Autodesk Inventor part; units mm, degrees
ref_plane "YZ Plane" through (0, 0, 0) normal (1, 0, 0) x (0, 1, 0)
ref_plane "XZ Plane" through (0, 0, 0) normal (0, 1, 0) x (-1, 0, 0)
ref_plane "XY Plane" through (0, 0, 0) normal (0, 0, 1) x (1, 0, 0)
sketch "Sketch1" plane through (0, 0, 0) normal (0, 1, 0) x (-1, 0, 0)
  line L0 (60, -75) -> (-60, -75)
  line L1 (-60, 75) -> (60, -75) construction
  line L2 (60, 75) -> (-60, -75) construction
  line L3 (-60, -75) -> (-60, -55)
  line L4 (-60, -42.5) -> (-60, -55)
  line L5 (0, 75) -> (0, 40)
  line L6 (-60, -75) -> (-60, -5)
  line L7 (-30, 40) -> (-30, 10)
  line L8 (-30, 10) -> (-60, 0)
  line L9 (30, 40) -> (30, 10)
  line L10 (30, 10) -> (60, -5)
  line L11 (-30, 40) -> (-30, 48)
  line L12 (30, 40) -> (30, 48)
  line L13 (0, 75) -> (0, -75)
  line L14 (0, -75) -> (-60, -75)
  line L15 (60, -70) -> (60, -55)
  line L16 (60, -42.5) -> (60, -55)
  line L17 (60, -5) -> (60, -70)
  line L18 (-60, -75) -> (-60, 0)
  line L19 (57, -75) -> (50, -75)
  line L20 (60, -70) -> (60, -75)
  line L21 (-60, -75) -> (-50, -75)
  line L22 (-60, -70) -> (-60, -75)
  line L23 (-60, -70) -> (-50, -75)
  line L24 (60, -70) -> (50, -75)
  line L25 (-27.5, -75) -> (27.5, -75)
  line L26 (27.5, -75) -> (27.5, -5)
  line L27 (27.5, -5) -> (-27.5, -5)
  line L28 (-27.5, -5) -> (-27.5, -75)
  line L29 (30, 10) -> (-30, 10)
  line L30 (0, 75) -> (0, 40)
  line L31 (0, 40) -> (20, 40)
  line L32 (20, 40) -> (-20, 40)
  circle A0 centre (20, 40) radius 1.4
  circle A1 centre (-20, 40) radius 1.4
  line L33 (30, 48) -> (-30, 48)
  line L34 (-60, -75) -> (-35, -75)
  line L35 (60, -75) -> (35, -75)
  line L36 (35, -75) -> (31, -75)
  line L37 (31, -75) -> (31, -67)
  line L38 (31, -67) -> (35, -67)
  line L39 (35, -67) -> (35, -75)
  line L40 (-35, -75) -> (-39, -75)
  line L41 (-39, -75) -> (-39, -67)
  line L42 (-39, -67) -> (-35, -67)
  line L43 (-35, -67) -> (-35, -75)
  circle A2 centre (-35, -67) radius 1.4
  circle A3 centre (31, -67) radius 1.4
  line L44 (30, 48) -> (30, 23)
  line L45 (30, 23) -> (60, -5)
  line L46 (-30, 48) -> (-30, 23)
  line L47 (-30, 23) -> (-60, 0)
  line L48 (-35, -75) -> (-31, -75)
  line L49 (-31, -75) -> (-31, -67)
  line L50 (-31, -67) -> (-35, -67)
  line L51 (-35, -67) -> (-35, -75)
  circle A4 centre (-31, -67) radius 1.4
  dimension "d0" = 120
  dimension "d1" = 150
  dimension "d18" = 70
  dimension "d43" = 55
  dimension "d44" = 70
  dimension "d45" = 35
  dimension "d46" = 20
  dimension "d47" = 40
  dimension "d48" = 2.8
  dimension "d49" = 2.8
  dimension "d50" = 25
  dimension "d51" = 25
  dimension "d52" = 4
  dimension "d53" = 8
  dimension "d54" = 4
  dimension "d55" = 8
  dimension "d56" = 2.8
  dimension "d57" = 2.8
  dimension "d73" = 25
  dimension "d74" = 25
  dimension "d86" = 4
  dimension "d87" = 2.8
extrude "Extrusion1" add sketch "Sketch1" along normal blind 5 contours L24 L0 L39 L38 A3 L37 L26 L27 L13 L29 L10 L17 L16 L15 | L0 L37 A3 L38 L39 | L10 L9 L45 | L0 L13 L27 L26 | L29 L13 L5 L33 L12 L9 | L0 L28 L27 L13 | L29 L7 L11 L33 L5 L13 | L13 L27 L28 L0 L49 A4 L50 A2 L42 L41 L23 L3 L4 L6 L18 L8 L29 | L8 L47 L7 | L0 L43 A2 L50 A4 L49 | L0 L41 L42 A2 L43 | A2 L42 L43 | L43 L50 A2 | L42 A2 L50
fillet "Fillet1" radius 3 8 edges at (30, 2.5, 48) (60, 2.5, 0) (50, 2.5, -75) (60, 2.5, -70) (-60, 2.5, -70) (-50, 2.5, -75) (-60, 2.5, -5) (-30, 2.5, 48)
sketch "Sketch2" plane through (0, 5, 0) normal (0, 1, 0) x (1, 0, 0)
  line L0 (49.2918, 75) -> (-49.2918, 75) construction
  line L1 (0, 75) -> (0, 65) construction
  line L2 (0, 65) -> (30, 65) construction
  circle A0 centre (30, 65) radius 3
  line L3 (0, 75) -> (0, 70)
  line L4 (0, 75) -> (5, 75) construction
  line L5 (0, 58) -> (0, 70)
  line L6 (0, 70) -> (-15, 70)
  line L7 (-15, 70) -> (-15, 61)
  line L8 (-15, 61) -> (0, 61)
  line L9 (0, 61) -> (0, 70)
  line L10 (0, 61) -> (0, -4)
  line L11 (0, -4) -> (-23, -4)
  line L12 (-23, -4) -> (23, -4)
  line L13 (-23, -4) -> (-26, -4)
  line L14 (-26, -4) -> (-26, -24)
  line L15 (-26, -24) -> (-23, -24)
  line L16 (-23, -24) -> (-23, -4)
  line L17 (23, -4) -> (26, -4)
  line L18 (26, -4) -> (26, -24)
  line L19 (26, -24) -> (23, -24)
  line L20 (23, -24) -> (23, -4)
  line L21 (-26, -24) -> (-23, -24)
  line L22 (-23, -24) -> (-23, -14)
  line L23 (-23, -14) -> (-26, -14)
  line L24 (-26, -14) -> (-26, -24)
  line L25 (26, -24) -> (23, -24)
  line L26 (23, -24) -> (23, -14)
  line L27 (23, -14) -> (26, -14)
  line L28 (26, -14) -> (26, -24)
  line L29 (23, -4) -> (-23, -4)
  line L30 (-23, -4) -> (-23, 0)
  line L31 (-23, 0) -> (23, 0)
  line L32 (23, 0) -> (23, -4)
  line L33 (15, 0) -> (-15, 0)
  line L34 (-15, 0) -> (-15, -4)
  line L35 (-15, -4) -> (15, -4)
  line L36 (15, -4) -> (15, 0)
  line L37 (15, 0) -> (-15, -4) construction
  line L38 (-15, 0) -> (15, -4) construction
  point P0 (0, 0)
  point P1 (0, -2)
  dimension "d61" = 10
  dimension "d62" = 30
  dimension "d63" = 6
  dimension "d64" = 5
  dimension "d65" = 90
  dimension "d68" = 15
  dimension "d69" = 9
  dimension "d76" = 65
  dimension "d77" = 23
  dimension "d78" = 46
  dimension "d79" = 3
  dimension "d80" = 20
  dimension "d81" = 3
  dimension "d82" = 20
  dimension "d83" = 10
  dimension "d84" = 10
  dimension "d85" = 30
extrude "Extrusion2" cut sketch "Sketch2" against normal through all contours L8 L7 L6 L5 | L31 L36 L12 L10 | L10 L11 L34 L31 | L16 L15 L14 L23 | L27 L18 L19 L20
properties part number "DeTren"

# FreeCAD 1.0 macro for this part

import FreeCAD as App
import Part
import Sketcher

V = App.Vector


def edges_at(feature, points):
    """Names of the edges that pass closest to the given points."""
    edges = feature.Shape.Edges
    near = lambda p: min(range(len(edges)), key=lambda i: edges[i].distToShape(Part.Vertex(*p))[0])
    return sorted({f"Edge{near(p) + 1}" for p in points})

doc = App.newDocument("Part")
params = doc.addObject("Spreadsheet::Sheet", "Params")
for row, (alias, value) in enumerate([
    ("sketch1_diameter", "2.8 mm"),
    ("sketch1_height", "25 mm"),
    ("sketch1_height2", "70 mm"),
    ("sketch1_width", "60 mm"),
    ("sketch1_height3", "65 mm"),
    ("pad1_length", "5 mm"),
    ("fillet_radius", "3 mm"),
    ("sketch2_width", "15 mm"),
    ("sketch2_width2", "3 mm"),
    ("sketch2_height", "9 mm"),
    ("sketch2_height2", "10 mm"),
    ("sketch2_height3", "4 mm"),
], start=1):
    params.set(f"A{row}", alias)
    params.set(f"B{row}", "=" + value)
    params.setAlias(f"B{row}", alias)

body = doc.addObject("PartDesign::Body", "Body")

sketch1 = doc.addObject("Sketcher::SketchObject", "Sketch")
body.addObject(sketch1)
sketch1.AttachmentSupport = (doc.XZ_Plane, [""])
sketch1.MapMode = "FlatFace"
sketch1.addGeometry([
    Part.LineSegment(V(-50, -75, 0), V(-60, -70, 0)),
    Part.LineSegment(V(-60, -70, 0), V(-60, -5, 0)),
    Part.LineSegment(V(-60, -5, 0), V(-30, 23, 0)),
    Part.LineSegment(V(-30, 23, 0), V(-30, 48, 0)),
    Part.LineSegment(V(-30, 48, 0), V(30, 48, 0)),
    Part.LineSegment(V(30, 48, 0), V(30, 23, 0)),
    Part.LineSegment(V(30, 23, 0), V(60, 0, 0)),
    Part.LineSegment(V(60, 0, 0), V(60, -70, 0)),
    Part.LineSegment(V(60, -70, 0), V(50, -75, 0)),
    Part.LineSegment(V(50, -75, 0), V(-50, -75, 0)),
    Part.Circle(V(-31, -67, 0), V(0, 0, 1), 1.4),
    Part.Circle(V(31, -67, 0), V(0, 0, 1), 1.4),
    Part.Circle(V(-20, 40, 0), V(0, 0, 1), 1.4),
    Part.Circle(V(20, 40, 0), V(0, 0, 1), 1.4),
], False)
sketch1.addConstraint([
    Sketcher.Constraint("Coincident", 0, 2, 1, 1),
    Sketcher.Constraint("Coincident", 1, 2, 2, 1),
    Sketcher.Constraint("Coincident", 2, 2, 3, 1),
    Sketcher.Constraint("Coincident", 3, 2, 4, 1),
    Sketcher.Constraint("Coincident", 4, 2, 5, 1),
    Sketcher.Constraint("Coincident", 5, 2, 6, 1),
    Sketcher.Constraint("Coincident", 6, 2, 7, 1),
    Sketcher.Constraint("Coincident", 7, 2, 8, 1),
    Sketcher.Constraint("Coincident", 8, 2, 9, 1),
    Sketcher.Constraint("Coincident", 9, 2, 0, 1),
    Sketcher.Constraint("Vertical", 1),
    Sketcher.Constraint("Vertical", 3),
    Sketcher.Constraint("Horizontal", 4),
    Sketcher.Constraint("Vertical", 5),
    Sketcher.Constraint("Vertical", 7),
    Sketcher.Constraint("Horizontal", 9),
    Sketcher.Constraint("Equal", 10, 11),
    Sketcher.Constraint("Equal", 11, 12),
    Sketcher.Constraint("Equal", 12, 13),
    Sketcher.Constraint("Symmetric", 10, 3, 11, 3, -2),
    Sketcher.Constraint("Symmetric", 12, 3, 13, 3, -2),
    Sketcher.Constraint("Symmetric", 2, 2, 5, 2, -2),
    Sketcher.Constraint("Symmetric", 0, 2, 7, 2, -2),
    Sketcher.Constraint("PointOnObject", 6, 2, -1),
    Sketcher.Constraint("Equal", 0, 8),
    Sketcher.Constraint("Diameter", 10, 2.8),
    Sketcher.Constraint("DistanceY", 3, 1, 3, 2, 25.0),
    Sketcher.Constraint("DistanceY", 7, 2, 7, 1, 70.0),
    Sketcher.Constraint("DistanceX", 12, 3, -1, 1, 20.0),
    Sketcher.Constraint("DistanceY", -1, 1, 12, 3, 40.0),
    Sketcher.Constraint("DistanceX", 0, 2, 12, 3, 40.0),
    Sketcher.Constraint("DistanceY", 12, 3, 3, 2, 8.0),
    Sketcher.Constraint("DistanceY", 8, 2, 11, 3, 8.0),
    Sketcher.Constraint("DistanceX", 5, 2, 8, 2, 20.0),
    Sketcher.Constraint("DistanceY", 9, 2, 1, 2, 70.0),
    Sketcher.Constraint("DistanceX", 4, 1, 4, 2, 60.0),
    Sketcher.Constraint("DistanceY", 1, 1, 1, 2, 65.0),
    Sketcher.Constraint("DistanceX", 10, 3, -1, 1, 31.0),
])
sketch1.setExpression("Constraints[25]", "Params.sketch1_diameter")
sketch1.setExpression("Constraints[26]", "Params.sketch1_height")
sketch1.setExpression("Constraints[27]", "Params.sketch1_height2")
sketch1.setExpression("Constraints[35]", "Params.sketch1_width")
sketch1.setExpression("Constraints[36]", "Params.sketch1_height3")
pad1 = doc.addObject("PartDesign::Pad", "Pad")
body.addObject(pad1)
pad1.Profile = sketch1
pad1.setExpression("Length", "Params.pad1_length")
pad1.Reversed = True
doc.recompute()

fillet = doc.addObject("PartDesign::Fillet", "Fillet")
body.addObject(fillet)
fillet.Base = (pad1, edges_at(pad1, [
    (30, 2.5, 48),
    (60, 2.5, 0),
    (50, 2.5, -75),
    (60, 2.5, -70),
    (-60, 2.5, -70),
    (-50, 2.5, -75),
    (-60, 2.5, -5),
    (-30, 2.5, 48),
]))
fillet.setExpression("Radius", "Params.fillet_radius")

sketch2 = doc.addObject("Sketcher::SketchObject", "Sketch001")
body.addObject(sketch2)
sketch2.AttachmentSupport = (doc.XZ_Plane, [""])
sketch2.MapMode = "FlatFace"
sketch2.AttachmentOffset = App.Placement(V(0, 0, -5), App.Rotation())
sketch2.addGeometry([
    Part.LineSegment(V(-15, -61, 0), V(0, -61, 0)),
    Part.LineSegment(V(0, -61, 0), V(0, -70, 0)),
    Part.LineSegment(V(0, -70, 0), V(-15, -70, 0)),
    Part.LineSegment(V(-15, -70, 0), V(-15, -61, 0)),
    Part.LineSegment(V(15, 0, 0), V(-15, 0, 0)),
    Part.LineSegment(V(-15, 0, 0), V(-15, 4, 0)),
    Part.LineSegment(V(-15, 4, 0), V(15, 4, 0)),
    Part.LineSegment(V(15, 4, 0), V(15, 0, 0)),
    Part.LineSegment(V(-23, 24, 0), V(-23, 14, 0)),
    Part.LineSegment(V(-23, 14, 0), V(-26, 14, 0)),
    Part.LineSegment(V(-26, 14, 0), V(-26, 24, 0)),
    Part.LineSegment(V(-26, 24, 0), V(-23, 24, 0)),
    Part.LineSegment(V(26, 14, 0), V(23, 14, 0)),
    Part.LineSegment(V(23, 14, 0), V(23, 24, 0)),
    Part.LineSegment(V(23, 24, 0), V(26, 24, 0)),
    Part.LineSegment(V(26, 24, 0), V(26, 14, 0)),
], False)
sketch2.addConstraint([
    Sketcher.Constraint("Coincident", 0, 2, 1, 1),
    Sketcher.Constraint("Coincident", 1, 2, 2, 1),
    Sketcher.Constraint("Coincident", 2, 2, 3, 1),
    Sketcher.Constraint("Coincident", 3, 2, 0, 1),
    Sketcher.Constraint("Coincident", 4, 2, 5, 1),
    Sketcher.Constraint("Coincident", 5, 2, 6, 1),
    Sketcher.Constraint("Coincident", 6, 2, 7, 1),
    Sketcher.Constraint("Coincident", 7, 2, 4, 1),
    Sketcher.Constraint("Coincident", 8, 2, 9, 1),
    Sketcher.Constraint("Coincident", 9, 2, 10, 1),
    Sketcher.Constraint("Coincident", 10, 2, 11, 1),
    Sketcher.Constraint("Coincident", 11, 2, 8, 1),
    Sketcher.Constraint("Coincident", 12, 2, 13, 1),
    Sketcher.Constraint("Coincident", 13, 2, 14, 1),
    Sketcher.Constraint("Coincident", 14, 2, 15, 1),
    Sketcher.Constraint("Coincident", 15, 2, 12, 1),
    Sketcher.Constraint("Horizontal", 0),
    Sketcher.Constraint("Vertical", 1),
    Sketcher.Constraint("Horizontal", 2),
    Sketcher.Constraint("Vertical", 3),
    Sketcher.Constraint("Horizontal", 4),
    Sketcher.Constraint("Vertical", 5),
    Sketcher.Constraint("Horizontal", 6),
    Sketcher.Constraint("Vertical", 7),
    Sketcher.Constraint("Vertical", 8),
    Sketcher.Constraint("Horizontal", 9),
    Sketcher.Constraint("Vertical", 10),
    Sketcher.Constraint("Horizontal", 11),
    Sketcher.Constraint("Horizontal", 12),
    Sketcher.Constraint("Vertical", 13),
    Sketcher.Constraint("Horizontal", 14),
    Sketcher.Constraint("Vertical", 15),
    Sketcher.Constraint("Symmetric", 4, 2, 7, 2, -1, 1),
    Sketcher.Constraint("Symmetric", 8, 2, 12, 2, -2),
    Sketcher.Constraint("Symmetric", 10, 2, 14, 2, -2),
    Sketcher.Constraint("PointOnObject", 0, 2, -2),
    Sketcher.Constraint("Vertical", 3, 2, 4, 2),
    Sketcher.Constraint("DistanceX", 0, 1, 0, 2, 15.0),
    Sketcher.Constraint("DistanceX", 9, 2, 9, 1, 3.0),
    Sketcher.Constraint("DistanceY", 1, 2, 1, 1, 9.0),
    Sketcher.Constraint("DistanceY", 8, 2, 8, 1, 10.0),
    Sketcher.Constraint("DistanceX", 8, 2, -1, 1, 23.0),
    Sketcher.Constraint("DistanceY", 3, 2, 5, 2, 65.0),
    Sketcher.Constraint("DistanceY", 5, 2, 8, 2, 10.0),
    Sketcher.Constraint("DistanceY", 5, 1, 5, 2, 4.0),
])
sketch2.setExpression("Constraints[37]", "Params.sketch2_width")
sketch2.setExpression("Constraints[38]", "Params.sketch2_width2")
sketch2.setExpression("Constraints[39]", "Params.sketch2_height")
sketch2.setExpression("Constraints[40]", "Params.sketch2_height2")
sketch2.setExpression("Constraints[44]", "Params.sketch2_height3")
pocket1 = doc.addObject("PartDesign::Pocket", "Pocket")
body.addObject(pocket1)
pocket1.Profile = sketch2
pocket1.Type = "ThroughAll"
pocket1.Reversed = True

doc.recompute()
